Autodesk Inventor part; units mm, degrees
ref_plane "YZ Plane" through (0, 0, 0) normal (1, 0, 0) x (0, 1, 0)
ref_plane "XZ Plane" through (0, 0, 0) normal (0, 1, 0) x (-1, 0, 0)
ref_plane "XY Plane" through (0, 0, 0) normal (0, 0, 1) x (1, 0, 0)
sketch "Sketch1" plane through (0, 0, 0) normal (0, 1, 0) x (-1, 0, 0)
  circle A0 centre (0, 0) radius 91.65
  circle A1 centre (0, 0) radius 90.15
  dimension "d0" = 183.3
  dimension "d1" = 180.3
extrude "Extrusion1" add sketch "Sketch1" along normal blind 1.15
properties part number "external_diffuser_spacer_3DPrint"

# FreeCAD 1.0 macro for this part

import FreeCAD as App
import Part
import Sketcher
from FreeCAD import Vector
Q = App.Units.Quantity

doc = App.newDocument("Part")
body = doc.addObject("PartDesign::Body", "Body")

sketch1 = body.newObject("Sketcher::SketchObject", "Sketch")
sketch1.AttachmentSupport = (doc.getObject("XZ_Plane"), [""])
sketch1.MapMode = "FlatFace"
sketch1.addGeometry(Part.Circle(Vector(0, 0, 0), Vector(0, 0, 1), 92), False)
sketch1.addGeometry(Part.Circle(Vector(0, 0, 0), Vector(0, 0, 1), 90), False)
sketch1.addConstraint(Sketcher.Constraint("Coincident", 0, 3, -1, 1))
sketch1.addConstraint(Sketcher.Constraint("Coincident", 1, 3, -1, 1))
sketch1.addConstraint(Sketcher.Constraint("Diameter", 0, Q("183.3 mm")))
sketch1.addConstraint(Sketcher.Constraint("Diameter", 1, Q("180.3 mm")))
pad1 = body.newObject("PartDesign::Pad", "Pad")
pad1.Profile = sketch1
pad1.Length = 1.15
pad1.Reversed = True

doc.recompute()
